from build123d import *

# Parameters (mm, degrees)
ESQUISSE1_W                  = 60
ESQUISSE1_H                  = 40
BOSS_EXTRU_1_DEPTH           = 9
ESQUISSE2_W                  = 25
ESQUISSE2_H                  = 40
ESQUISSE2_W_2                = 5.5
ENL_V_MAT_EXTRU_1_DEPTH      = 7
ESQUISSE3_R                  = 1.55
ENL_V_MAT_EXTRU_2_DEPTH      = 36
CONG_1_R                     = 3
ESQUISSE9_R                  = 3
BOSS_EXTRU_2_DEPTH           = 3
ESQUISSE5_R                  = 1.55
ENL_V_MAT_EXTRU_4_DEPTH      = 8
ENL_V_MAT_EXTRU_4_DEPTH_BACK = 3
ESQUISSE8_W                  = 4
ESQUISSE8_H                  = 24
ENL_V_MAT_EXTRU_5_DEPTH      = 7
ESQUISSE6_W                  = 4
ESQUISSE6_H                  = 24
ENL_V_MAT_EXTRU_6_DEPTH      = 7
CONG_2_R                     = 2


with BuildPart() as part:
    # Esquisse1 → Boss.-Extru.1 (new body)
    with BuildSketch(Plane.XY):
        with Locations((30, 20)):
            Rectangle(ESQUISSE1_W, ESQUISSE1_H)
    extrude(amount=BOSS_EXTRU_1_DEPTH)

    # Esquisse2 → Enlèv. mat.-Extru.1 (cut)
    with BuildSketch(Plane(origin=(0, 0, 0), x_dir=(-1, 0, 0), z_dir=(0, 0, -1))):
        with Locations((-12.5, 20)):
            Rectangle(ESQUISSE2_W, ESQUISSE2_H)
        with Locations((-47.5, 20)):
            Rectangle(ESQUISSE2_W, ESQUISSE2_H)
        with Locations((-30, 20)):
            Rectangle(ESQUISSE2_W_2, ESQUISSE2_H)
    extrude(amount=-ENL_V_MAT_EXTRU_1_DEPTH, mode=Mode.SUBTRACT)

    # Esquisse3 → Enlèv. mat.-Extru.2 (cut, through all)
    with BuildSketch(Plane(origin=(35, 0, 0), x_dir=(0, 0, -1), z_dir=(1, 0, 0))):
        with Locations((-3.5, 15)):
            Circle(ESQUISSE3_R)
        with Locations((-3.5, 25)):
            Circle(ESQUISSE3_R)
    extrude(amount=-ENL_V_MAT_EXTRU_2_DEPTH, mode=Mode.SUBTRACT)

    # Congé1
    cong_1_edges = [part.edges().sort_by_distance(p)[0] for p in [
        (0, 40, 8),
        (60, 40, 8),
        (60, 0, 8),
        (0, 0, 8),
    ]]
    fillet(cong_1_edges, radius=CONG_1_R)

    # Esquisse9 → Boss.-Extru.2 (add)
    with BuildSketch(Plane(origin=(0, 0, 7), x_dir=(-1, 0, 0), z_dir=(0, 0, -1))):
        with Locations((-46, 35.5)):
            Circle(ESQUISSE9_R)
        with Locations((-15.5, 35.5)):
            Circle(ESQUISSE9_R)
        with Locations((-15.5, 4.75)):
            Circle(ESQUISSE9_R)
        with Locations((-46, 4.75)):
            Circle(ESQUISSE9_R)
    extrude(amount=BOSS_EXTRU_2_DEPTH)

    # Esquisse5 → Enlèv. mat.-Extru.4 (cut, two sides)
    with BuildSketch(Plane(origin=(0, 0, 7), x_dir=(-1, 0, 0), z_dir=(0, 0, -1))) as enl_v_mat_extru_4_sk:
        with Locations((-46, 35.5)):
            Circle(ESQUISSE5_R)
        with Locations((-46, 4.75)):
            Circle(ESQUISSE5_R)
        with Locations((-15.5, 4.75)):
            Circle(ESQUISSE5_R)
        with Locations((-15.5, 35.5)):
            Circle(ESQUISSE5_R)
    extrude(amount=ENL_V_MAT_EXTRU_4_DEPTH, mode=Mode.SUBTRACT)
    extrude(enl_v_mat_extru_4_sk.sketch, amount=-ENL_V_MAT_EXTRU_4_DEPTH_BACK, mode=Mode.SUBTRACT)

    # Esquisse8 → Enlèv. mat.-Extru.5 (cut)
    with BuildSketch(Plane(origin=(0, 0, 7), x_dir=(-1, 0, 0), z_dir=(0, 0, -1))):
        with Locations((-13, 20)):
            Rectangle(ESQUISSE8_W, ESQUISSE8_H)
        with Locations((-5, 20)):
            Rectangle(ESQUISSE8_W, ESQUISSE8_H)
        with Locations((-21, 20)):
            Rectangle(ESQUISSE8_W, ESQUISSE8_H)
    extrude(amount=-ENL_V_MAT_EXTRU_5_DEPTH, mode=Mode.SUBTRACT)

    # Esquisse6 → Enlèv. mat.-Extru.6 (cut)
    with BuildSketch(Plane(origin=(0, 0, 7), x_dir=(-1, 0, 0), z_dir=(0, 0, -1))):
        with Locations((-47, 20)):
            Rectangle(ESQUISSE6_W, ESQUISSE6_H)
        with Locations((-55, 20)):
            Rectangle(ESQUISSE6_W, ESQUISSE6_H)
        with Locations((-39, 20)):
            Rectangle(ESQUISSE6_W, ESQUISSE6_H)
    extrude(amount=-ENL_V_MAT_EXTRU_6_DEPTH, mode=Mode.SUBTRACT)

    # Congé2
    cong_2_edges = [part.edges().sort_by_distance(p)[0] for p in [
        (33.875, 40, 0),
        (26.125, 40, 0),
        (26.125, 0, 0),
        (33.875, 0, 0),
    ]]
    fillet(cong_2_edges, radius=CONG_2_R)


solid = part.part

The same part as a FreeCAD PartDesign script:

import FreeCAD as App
import Part
import Sketcher
from FreeCAD import Vector
Q = App.Units.Quantity


def edges_at(feature, points):
    """Names of the edges that pass closest to the given points."""
    edges = feature.Shape.Edges
    near = lambda p: min(range(len(edges)), key=lambda i: edges[i].distToShape(Part.Vertex(*p))[0])
    return sorted({f"Edge{near(p) + 1}" for p in points})


def add_polygon(sketch, points):
    """Adds a closed chain of lines whose ends are joined by coincident constraints."""
    first, n = sketch.GeometryCount, len(points)
    for a, b in zip(points, points[1:] + points[:1]):
        sketch.addGeometry(Part.LineSegment(App.Vector(*a, 0), App.Vector(*b, 0)), False)
    for i in range(n):
        sketch.addConstraint(Sketcher.Constraint("Coincident", first + i, 2, first + (i + 1) % n, 1))

doc = App.newDocument("Part")
params = doc.addObject("Spreadsheet::Sheet", "Params")
for row, (alias, value) in enumerate([
    ("sketch1_width", "60 mm"),
    ("sketch1_height", "40 mm"),
    ("pad1_length", "9 mm"),
    ("sketch2_width", "25 mm"),
    ("sketch2_height", "40 mm"),
    ("sketch2_width2", "5.5 mm"),
    ("pocket1_length", "7 mm"),
    ("sketch3_diameter", "3.1 mm"),
    ("fillet_radius", "3 mm"),
    ("sketch4_diameter", "6 mm"),
    ("pad2_length", "3 mm"),
    ("sketch5_diameter", "3.1 mm"),
    ("sketch6_width", "4 mm"),
    ("sketch6_height", "24 mm"),
    ("pocket4_length", "7 mm"),
    ("sketch7_width", "4 mm"),
    ("sketch7_height", "24 mm"),
    ("pocket5_length", "7 mm"),
    ("fillet2_radius", "2 mm"),
], start=1):
    params.set(f"A{row}", alias)
    params.set(f"B{row}", "=" + value)
    params.setAlias(f"B{row}", alias)

body = doc.addObject("PartDesign::Body", "Body")

# Sketch on XY plane
sketch1 = body.newObject("Sketcher::SketchObject", "Sketch")
sketch1.AttachmentSupport = (doc.getObject("XY_Plane"), [""])
sketch1.MapMode = "FlatFace"
add_polygon(sketch1, [(0, 40), (0, 0), (60, 0), (60, 40)])  # lines 0-3
sketch1.addConstraint(Sketcher.Constraint("Vertical", 0))
sketch1.addConstraint(Sketcher.Constraint("Horizontal", 1))
sketch1.addConstraint(Sketcher.Constraint("Vertical", 2))
sketch1.addConstraint(Sketcher.Constraint("Horizontal", 3))
sketch1.addConstraint(Sketcher.Constraint("Coincident", 0, 2, -1, 1))
sketch1.addConstraint(Sketcher.Constraint("DistanceX", 1, 1, 1, 2, Q("60 mm")))
sketch1.addConstraint(Sketcher.Constraint("DistanceY", 0, 2, 0, 1, Q("40 mm")))
sketch1.setExpression("Constraints[9]", "Params.sketch1_width")
sketch1.setExpression("Constraints[10]", "Params.sketch1_height")
pad1 = body.newObject("PartDesign::Pad", "Pad")
pad1.Profile = sketch1
pad1.setExpression("Length", "Params.pad1_length")

# Sketch on XY plane
sketch2 = body.newObject("Sketcher::SketchObject", "Sketch001")
sketch2.AttachmentSupport = (doc.getObject("XY_Plane"), [""])
sketch2.MapMode = "FlatFace"
add_polygon(sketch2, [(25, 40), (25, 0), (0, 0), (0, 40)])  # lines 0-3
add_polygon(sketch2, [(60, 40), (60, 0), (35, 0), (35, 40)])  # lines 4-7
add_polygon(sketch2, [(32.75, 40), (32.75, 0), (27.25, 0), (27.25, 40)])  # lines 8-11
sketch2.addConstraint(Sketcher.Constraint("Vertical", 0))
sketch2.addConstraint(Sketcher.Constraint("Horizontal", 1))
sketch2.addConstraint(Sketcher.Constraint("Vertical", 2))
sketch2.addConstraint(Sketcher.Constraint("Horizontal", 3))
sketch2.addConstraint(Sketcher.Constraint("Vertical", 4))
sketch2.addConstraint(Sketcher.Constraint("Horizontal", 5))
sketch2.addConstraint(Sketcher.Constraint("Vertical", 6))
sketch2.addConstraint(Sketcher.Constraint("Horizontal", 7))
sketch2.addConstraint(Sketcher.Constraint("Vertical", 8))
sketch2.addConstraint(Sketcher.Constraint("Horizontal", 9))
sketch2.addConstraint(Sketcher.Constraint("Vertical", 10))
sketch2.addConstraint(Sketcher.Constraint("Horizontal", 11))
sketch2.addConstraint(Sketcher.Constraint("Coincident", 1, 2, -1, 1))
sketch2.addConstraint(Sketcher.Constraint("PointOnObject", 4, 2, -1))
sketch2.addConstraint(Sketcher.Constraint("PointOnObject", 8, 2, -1))
sketch2.addConstraint(Sketcher.Constraint("Horizontal", 3, 2, 6, 2))
sketch2.addConstraint(Sketcher.Constraint("Horizontal", 7, 2, 10, 2))
sketch2.addConstraint(Sketcher.Constraint("Equal", 3, 5))
sketch2.addConstraint(Sketcher.Constraint("DistanceX", 1, 2, 1, 1, Q("25 mm")))
sketch2.addConstraint(Sketcher.Constraint("DistanceY", 0, 2, 0, 1, Q("40 mm")))
sketch2.addConstraint(Sketcher.Constraint("DistanceX", 9, 2, 9, 1, Q("5.5 mm")))
sketch2.addConstraint(Sketcher.Constraint("DistanceX", -1, 1, 4, 2, Q("60 mm")))
sketch2.addConstraint(Sketcher.Constraint("DistanceX", -1, 1, 8, 2, Q("32.75 mm")))
sketch2.setExpression("Constraints[30]", "Params.sketch2_width")
sketch2.setExpression("Constraints[31]", "Params.sketch2_height")
sketch2.setExpression("Constraints[32]", "Params.sketch2_width2")
pocket1 = body.newObject("PartDesign::Pocket", "Pocket")
pocket1.Profile = sketch2
pocket1.setExpression("Length", "Params.pocket1_length")
pocket1.Reversed = True

# Sketch on YZ plane
sketch3 = body.newObject("Sketcher::SketchObject", "Sketch002")
sketch3.AttachmentSupport = (doc.getObject("YZ_Plane"), [""])
sketch3.MapMode = "FlatFace"
sketch3.AttachmentOffset = App.Placement(Vector(0, 0, 35), App.Rotation())
sketch3.addGeometry(Part.Circle(Vector(15, 3.5, 0), Vector(0, 0, 1), 1.55), False)
sketch3.addGeometry(Part.Circle(Vector(25, 3.5, 0), Vector(0, 0, 1), 1.55), False)
sketch3.addConstraint(Sketcher.Constraint("Equal", 0, 1))
sketch3.addConstraint(Sketcher.Constraint("Horizontal", 0, 3, 1, 3))
sketch3.addConstraint(Sketcher.Constraint("Diameter", 0, Q("3.1 mm")))
sketch3.addConstraint(Sketcher.Constraint("DistanceX", -1, 1, 0, 3, Q("15 mm")))
sketch3.addConstraint(Sketcher.Constraint("DistanceX", -1, 1, 1, 3, Q("25 mm")))
sketch3.addConstraint(Sketcher.Constraint("DistanceY", -1, 1, 0, 3, Q("3.5 mm")))
sketch3.setExpression("Constraints[2]", "Params.sketch3_diameter")
pocket2 = body.newObject("PartDesign::Pocket", "Pocket001")
pocket2.Profile = sketch3
pocket2.Type = "ThroughAll"
doc.recompute()

fillet = body.newObject("PartDesign::Fillet", "Fillet")
fillet.Base = (pocket2, edges_at(pocket2, [
    (0, 40, 8),
    (60, 40, 8),
    (60, 0, 8),
    (0, 0, 8),
]))
fillet.setExpression("Radius", "Params.fillet_radius")

# Sketch on XY plane
sketch4 = body.newObject("Sketcher::SketchObject", "Sketch003")
sketch4.AttachmentSupport = (doc.getObject("XY_Plane"), [""])
sketch4.MapMode = "FlatFace"
sketch4.AttachmentOffset = App.Placement(Vector(0, 0, 7), App.Rotation())
sketch4.addGeometry(Part.Circle(Vector(46, 35.5, 0), Vector(0, 0, 1), 3), False)
sketch4.addGeometry(Part.Circle(Vector(15.5, 35.5, 0), Vector(0, 0, 1), 3), False)
sketch4.addGeometry(Part.Circle(Vector(15.5, 4.75, 0), Vector(0, 0, 1), 3), False)
sketch4.addGeometry(Part.Circle(Vector(46, 4.75, 0), Vector(0, 0, 1), 3), False)
sketch4.addConstraint(Sketcher.Constraint("Equal", 0, 1))
sketch4.addConstraint(Sketcher.Constraint("Equal", 1, 2))
sketch4.addConstraint(Sketcher.Constraint("Equal", 2, 3))
sketch4.addConstraint(Sketcher.Constraint("Horizontal", 0, 3, 1, 3))
sketch4.addConstraint(Sketcher.Constraint("Horizontal", 2, 3, 3, 3))
sketch4.addConstraint(Sketcher.Constraint("Vertical", 1, 3, 2, 3))
sketch4.addConstraint(Sketcher.Constraint("Vertical", 0, 3, 3, 3))
sketch4.addConstraint(Sketcher.Constraint("Diameter", 0, Q("6 mm")))
sketch4.addConstraint(Sketcher.Constraint("DistanceX", -1, 1, 0, 3, Q("46 mm")))
sketch4.addConstraint(Sketcher.Constraint("DistanceY", -1, 1, 0, 3, Q("35.5 mm")))
sketch4.addConstraint(Sketcher.Constraint("DistanceX", -1, 1, 1, 3, Q("15.5 mm")))
sketch4.addConstraint(Sketcher.Constraint("DistanceY", -1, 1, 2, 3, Q("4.75 mm")))
sketch4.setExpression("Constraints[7]", "Params.sketch4_diameter")
pad2 = body.newObject("PartDesign::Pad", "Pad001")
pad2.Profile = sketch4
pad2.setExpression("Length", "Params.pad2_length")
pad2.Reversed = True

# Sketch on XY plane
sketch5 = body.newObject("Sketcher::SketchObject", "Sketch004")
sketch5.AttachmentSupport = (doc.getObject("XY_Plane"), [""])
sketch5.MapMode = "FlatFace"
sketch5.AttachmentOffset = App.Placement(Vector(0, 0, 7), App.Rotation())
sketch5.addGeometry(Part.Circle(Vector(46, 35.5, 0), Vector(0, 0, 1), 1.55), False)
sketch5.addGeometry(Part.Circle(Vector(46, 4.75, 0), Vector(0, 0, 1), 1.55), False)
sketch5.addGeometry(Part.Circle(Vector(15.5, 4.75, 0), Vector(0, 0, 1), 1.55), False)
sketch5.addGeometry(Part.Circle(Vector(15.5, 35.5, 0), Vector(0, 0, 1), 1.55), False)
sketch5.addConstraint(Sketcher.Constraint("Equal", 0, 1))
sketch5.addConstraint(Sketcher.Constraint("Equal", 1, 2))
sketch5.addConstraint(Sketcher.Constraint("Equal", 2, 3))
sketch5.addConstraint(Sketcher.Constraint("Horizontal", 1, 3, 2, 3))
sketch5.addConstraint(Sketcher.Constraint("Horizontal", 0, 3, 3, 3))
sketch5.addConstraint(Sketcher.Constraint("Vertical", 0, 3, 1, 3))
sketch5.addConstraint(Sketcher.Constraint("Vertical", 2, 3, 3, 3))
sketch5.addConstraint(Sketcher.Constraint("Diameter", 0, Q("3.1 mm")))
sketch5.addConstraint(Sketcher.Constraint("DistanceX", -1, 1, 0, 3, Q("46 mm")))
sketch5.addConstraint(Sketcher.Constraint("DistanceY", -1, 1, 0, 3, Q("35.5 mm")))
sketch5.addConstraint(Sketcher.Constraint("DistanceX", -1, 1, 2, 3, Q("15.5 mm")))
sketch5.addConstraint(Sketcher.Constraint("DistanceY", -1, 1, 1, 3, Q("4.75 mm")))
sketch5.setExpression("Constraints[7]", "Params.sketch5_diameter")
pocket3 = body.newObject("PartDesign::Pocket", "Pocket002")
pocket3.Profile = sketch5
pocket3.Type = "ThroughAll"
pocket3.Midplane = True

# Sketch on XY plane
sketch6 = body.newObject("Sketcher::SketchObject", "Sketch005")
sketch6.AttachmentSupport = (doc.getObject("XY_Plane"), [""])
sketch6.MapMode = "FlatFace"
sketch6.AttachmentOffset = App.Placement(Vector(0, 0, 7), App.Rotation())
add_polygon(sketch6, [(15, 32), (15, 8), (11, 8), (11, 32)])  # lines 0-3
add_polygon(sketch6, [(7, 32), (7, 8), (3, 8), (3, 32)])  # lines 4-7
add_polygon(sketch6, [(23, 32), (23, 8), (19, 8), (19, 32)])  # lines 8-11
sketch6.addConstraint(Sketcher.Constraint("Vertical", 0))
sketch6.addConstraint(Sketcher.Constraint("Horizontal", 1))
sketch6.addConstraint(Sketcher.Constraint("Vertical", 2))
sketch6.addConstraint(Sketcher.Constraint("Horizontal", 3))
sketch6.addConstraint(Sketcher.Constraint("Vertical", 4))
sketch6.addConstraint(Sketcher.Constraint("Horizontal", 5))
sketch6.addConstraint(Sketcher.Constraint("Vertical", 6))
sketch6.addConstraint(Sketcher.Constraint("Horizontal", 7))
sketch6.addConstraint(Sketcher.Constraint("Vertical", 8))
sketch6.addConstraint(Sketcher.Constraint("Horizontal", 9))
sketch6.addConstraint(Sketcher.Constraint("Vertical", 10))
sketch6.addConstraint(Sketcher.Constraint("Horizontal", 11))
sketch6.addConstraint(Sketcher.Constraint("Horizontal", 1, 2, 4, 2))
sketch6.addConstraint(Sketcher.Constraint("Horizontal", 3, 2, 6, 2))
sketch6.addConstraint(Sketcher.Constraint("Horizontal", 5, 2, 8, 2))
sketch6.addConstraint(Sketcher.Constraint("Horizontal", 7, 2, 10, 2))
sketch6.addConstraint(Sketcher.Constraint("Equal", 3, 5))
sketch6.addConstraint(Sketcher.Constraint("Equal", 7, 9))
sketch6.addConstraint(Sketcher.Constraint("DistanceX", 1, 2, 1, 1, Q("4 mm")))
sketch6.addConstraint(Sketcher.Constraint("DistanceY", 0, 2, 0, 1, Q("24 mm")))
sketch6.addConstraint(Sketcher.Constraint("DistanceX", -1, 1, 0, 2, Q("15 mm")))
sketch6.addConstraint(Sketcher.Constraint("DistanceY", -1, 1, 0, 2, Q("8 mm")))
sketch6.addConstraint(Sketcher.Constraint("DistanceX", -1, 1, 4, 2, Q("7 mm")))
sketch6.addConstraint(Sketcher.Constraint("DistanceX", -1, 1, 8, 2, Q("23 mm")))
sketch6.setExpression("Constraints[30]", "Params.sketch6_width")
sketch6.setExpression("Constraints[31]", "Params.sketch6_height")
pocket4 = body.newObject("PartDesign::Pocket", "Pocket003")
pocket4.Profile = sketch6
pocket4.setExpression("Length", "Params.pocket4_length")
pocket4.Reversed = True

# Sketch on XY plane
sketch7 = body.newObject("Sketcher::SketchObject", "Sketch006")
sketch7.AttachmentSupport = (doc.getObject("XY_Plane"), [""])
sketch7.MapMode = "FlatFace"
sketch7.AttachmentOffset = App.Placement(Vector(0, 0, 7), App.Rotation())
add_polygon(sketch7, [(49, 32), (49, 8), (45, 8), (45, 32)])  # lines 0-3
add_polygon(sketch7, [(57, 32), (57, 8), (53, 8), (53, 32)])  # lines 4-7
add_polygon(sketch7, [(41, 32), (41, 8), (37, 8), (37, 32)])  # lines 8-11
sketch7.addConstraint(Sketcher.Constraint("Vertical", 0))
sketch7.addConstraint(Sketcher.Constraint("Horizontal", 1))
sketch7.addConstraint(Sketcher.Constraint("Vertical", 2))
sketch7.addConstraint(Sketcher.Constraint("Horizontal", 3))
sketch7.addConstraint(Sketcher.Constraint("Vertical", 4))
sketch7.addConstraint(Sketcher.Constraint("Horizontal", 5))
sketch7.addConstraint(Sketcher.Constraint("Vertical", 6))
sketch7.addConstraint(Sketcher.Constraint("Horizontal", 7))
sketch7.addConstraint(Sketcher.Constraint("Vertical", 8))
sketch7.addConstraint(Sketcher.Constraint("Horizontal", 9))
sketch7.addConstraint(Sketcher.Constraint("Vertical", 10))
sketch7.addConstraint(Sketcher.Constraint("Horizontal", 11))
sketch7.addConstraint(Sketcher.Constraint("Horizontal", 1, 2, 4, 2))
sketch7.addConstraint(Sketcher.Constraint("Horizontal", 3, 2, 6, 2))
sketch7.addConstraint(Sketcher.Constraint("Horizontal", 5, 2, 8, 2))
sketch7.addConstraint(Sketcher.Constraint("Horizontal", 7, 2, 10, 2))
sketch7.addConstraint(Sketcher.Constraint("Equal", 3, 5))
sketch7.addConstraint(Sketcher.Constraint("Equal", 7, 9))
sketch7.addConstraint(Sketcher.Constraint("DistanceX", 1, 2, 1, 1, Q("4 mm")))
sketch7.addConstraint(Sketcher.Constraint("DistanceY", 0, 2, 0, 1, Q("24 mm")))
sketch7.addConstraint(Sketcher.Constraint("DistanceX", -1, 1, 0, 2, Q("49 mm")))
sketch7.addConstraint(Sketcher.Constraint("DistanceY", -1, 1, 0, 2, Q("8 mm")))
sketch7.addConstraint(Sketcher.Constraint("DistanceX", -1, 1, 4, 2, Q("57 mm")))
sketch7.addConstraint(Sketcher.Constraint("DistanceX", -1, 1, 8, 2, Q("41 mm")))
sketch7.setExpression("Constraints[30]", "Params.sketch7_width")
sketch7.setExpression("Constraints[31]", "Params.sketch7_height")
pocket5 = body.newObject("PartDesign::Pocket", "Pocket004")
pocket5.Profile = sketch7
pocket5.setExpression("Length", "Params.pocket5_length")
pocket5.Reversed = True
doc.recompute()

fillet2 = body.newObject("PartDesign::Fillet", "Fillet001")
fillet2.Base = (pocket5, edges_at(pocket5, [
    (33.875, 40, 0),
    (26.125, 40, 0),
    (26.125, 0, 0),
    (33.875, 0, 0),
]))
fillet2.setExpression("Radius", "Params.fillet2_radius")

doc.recompute()
